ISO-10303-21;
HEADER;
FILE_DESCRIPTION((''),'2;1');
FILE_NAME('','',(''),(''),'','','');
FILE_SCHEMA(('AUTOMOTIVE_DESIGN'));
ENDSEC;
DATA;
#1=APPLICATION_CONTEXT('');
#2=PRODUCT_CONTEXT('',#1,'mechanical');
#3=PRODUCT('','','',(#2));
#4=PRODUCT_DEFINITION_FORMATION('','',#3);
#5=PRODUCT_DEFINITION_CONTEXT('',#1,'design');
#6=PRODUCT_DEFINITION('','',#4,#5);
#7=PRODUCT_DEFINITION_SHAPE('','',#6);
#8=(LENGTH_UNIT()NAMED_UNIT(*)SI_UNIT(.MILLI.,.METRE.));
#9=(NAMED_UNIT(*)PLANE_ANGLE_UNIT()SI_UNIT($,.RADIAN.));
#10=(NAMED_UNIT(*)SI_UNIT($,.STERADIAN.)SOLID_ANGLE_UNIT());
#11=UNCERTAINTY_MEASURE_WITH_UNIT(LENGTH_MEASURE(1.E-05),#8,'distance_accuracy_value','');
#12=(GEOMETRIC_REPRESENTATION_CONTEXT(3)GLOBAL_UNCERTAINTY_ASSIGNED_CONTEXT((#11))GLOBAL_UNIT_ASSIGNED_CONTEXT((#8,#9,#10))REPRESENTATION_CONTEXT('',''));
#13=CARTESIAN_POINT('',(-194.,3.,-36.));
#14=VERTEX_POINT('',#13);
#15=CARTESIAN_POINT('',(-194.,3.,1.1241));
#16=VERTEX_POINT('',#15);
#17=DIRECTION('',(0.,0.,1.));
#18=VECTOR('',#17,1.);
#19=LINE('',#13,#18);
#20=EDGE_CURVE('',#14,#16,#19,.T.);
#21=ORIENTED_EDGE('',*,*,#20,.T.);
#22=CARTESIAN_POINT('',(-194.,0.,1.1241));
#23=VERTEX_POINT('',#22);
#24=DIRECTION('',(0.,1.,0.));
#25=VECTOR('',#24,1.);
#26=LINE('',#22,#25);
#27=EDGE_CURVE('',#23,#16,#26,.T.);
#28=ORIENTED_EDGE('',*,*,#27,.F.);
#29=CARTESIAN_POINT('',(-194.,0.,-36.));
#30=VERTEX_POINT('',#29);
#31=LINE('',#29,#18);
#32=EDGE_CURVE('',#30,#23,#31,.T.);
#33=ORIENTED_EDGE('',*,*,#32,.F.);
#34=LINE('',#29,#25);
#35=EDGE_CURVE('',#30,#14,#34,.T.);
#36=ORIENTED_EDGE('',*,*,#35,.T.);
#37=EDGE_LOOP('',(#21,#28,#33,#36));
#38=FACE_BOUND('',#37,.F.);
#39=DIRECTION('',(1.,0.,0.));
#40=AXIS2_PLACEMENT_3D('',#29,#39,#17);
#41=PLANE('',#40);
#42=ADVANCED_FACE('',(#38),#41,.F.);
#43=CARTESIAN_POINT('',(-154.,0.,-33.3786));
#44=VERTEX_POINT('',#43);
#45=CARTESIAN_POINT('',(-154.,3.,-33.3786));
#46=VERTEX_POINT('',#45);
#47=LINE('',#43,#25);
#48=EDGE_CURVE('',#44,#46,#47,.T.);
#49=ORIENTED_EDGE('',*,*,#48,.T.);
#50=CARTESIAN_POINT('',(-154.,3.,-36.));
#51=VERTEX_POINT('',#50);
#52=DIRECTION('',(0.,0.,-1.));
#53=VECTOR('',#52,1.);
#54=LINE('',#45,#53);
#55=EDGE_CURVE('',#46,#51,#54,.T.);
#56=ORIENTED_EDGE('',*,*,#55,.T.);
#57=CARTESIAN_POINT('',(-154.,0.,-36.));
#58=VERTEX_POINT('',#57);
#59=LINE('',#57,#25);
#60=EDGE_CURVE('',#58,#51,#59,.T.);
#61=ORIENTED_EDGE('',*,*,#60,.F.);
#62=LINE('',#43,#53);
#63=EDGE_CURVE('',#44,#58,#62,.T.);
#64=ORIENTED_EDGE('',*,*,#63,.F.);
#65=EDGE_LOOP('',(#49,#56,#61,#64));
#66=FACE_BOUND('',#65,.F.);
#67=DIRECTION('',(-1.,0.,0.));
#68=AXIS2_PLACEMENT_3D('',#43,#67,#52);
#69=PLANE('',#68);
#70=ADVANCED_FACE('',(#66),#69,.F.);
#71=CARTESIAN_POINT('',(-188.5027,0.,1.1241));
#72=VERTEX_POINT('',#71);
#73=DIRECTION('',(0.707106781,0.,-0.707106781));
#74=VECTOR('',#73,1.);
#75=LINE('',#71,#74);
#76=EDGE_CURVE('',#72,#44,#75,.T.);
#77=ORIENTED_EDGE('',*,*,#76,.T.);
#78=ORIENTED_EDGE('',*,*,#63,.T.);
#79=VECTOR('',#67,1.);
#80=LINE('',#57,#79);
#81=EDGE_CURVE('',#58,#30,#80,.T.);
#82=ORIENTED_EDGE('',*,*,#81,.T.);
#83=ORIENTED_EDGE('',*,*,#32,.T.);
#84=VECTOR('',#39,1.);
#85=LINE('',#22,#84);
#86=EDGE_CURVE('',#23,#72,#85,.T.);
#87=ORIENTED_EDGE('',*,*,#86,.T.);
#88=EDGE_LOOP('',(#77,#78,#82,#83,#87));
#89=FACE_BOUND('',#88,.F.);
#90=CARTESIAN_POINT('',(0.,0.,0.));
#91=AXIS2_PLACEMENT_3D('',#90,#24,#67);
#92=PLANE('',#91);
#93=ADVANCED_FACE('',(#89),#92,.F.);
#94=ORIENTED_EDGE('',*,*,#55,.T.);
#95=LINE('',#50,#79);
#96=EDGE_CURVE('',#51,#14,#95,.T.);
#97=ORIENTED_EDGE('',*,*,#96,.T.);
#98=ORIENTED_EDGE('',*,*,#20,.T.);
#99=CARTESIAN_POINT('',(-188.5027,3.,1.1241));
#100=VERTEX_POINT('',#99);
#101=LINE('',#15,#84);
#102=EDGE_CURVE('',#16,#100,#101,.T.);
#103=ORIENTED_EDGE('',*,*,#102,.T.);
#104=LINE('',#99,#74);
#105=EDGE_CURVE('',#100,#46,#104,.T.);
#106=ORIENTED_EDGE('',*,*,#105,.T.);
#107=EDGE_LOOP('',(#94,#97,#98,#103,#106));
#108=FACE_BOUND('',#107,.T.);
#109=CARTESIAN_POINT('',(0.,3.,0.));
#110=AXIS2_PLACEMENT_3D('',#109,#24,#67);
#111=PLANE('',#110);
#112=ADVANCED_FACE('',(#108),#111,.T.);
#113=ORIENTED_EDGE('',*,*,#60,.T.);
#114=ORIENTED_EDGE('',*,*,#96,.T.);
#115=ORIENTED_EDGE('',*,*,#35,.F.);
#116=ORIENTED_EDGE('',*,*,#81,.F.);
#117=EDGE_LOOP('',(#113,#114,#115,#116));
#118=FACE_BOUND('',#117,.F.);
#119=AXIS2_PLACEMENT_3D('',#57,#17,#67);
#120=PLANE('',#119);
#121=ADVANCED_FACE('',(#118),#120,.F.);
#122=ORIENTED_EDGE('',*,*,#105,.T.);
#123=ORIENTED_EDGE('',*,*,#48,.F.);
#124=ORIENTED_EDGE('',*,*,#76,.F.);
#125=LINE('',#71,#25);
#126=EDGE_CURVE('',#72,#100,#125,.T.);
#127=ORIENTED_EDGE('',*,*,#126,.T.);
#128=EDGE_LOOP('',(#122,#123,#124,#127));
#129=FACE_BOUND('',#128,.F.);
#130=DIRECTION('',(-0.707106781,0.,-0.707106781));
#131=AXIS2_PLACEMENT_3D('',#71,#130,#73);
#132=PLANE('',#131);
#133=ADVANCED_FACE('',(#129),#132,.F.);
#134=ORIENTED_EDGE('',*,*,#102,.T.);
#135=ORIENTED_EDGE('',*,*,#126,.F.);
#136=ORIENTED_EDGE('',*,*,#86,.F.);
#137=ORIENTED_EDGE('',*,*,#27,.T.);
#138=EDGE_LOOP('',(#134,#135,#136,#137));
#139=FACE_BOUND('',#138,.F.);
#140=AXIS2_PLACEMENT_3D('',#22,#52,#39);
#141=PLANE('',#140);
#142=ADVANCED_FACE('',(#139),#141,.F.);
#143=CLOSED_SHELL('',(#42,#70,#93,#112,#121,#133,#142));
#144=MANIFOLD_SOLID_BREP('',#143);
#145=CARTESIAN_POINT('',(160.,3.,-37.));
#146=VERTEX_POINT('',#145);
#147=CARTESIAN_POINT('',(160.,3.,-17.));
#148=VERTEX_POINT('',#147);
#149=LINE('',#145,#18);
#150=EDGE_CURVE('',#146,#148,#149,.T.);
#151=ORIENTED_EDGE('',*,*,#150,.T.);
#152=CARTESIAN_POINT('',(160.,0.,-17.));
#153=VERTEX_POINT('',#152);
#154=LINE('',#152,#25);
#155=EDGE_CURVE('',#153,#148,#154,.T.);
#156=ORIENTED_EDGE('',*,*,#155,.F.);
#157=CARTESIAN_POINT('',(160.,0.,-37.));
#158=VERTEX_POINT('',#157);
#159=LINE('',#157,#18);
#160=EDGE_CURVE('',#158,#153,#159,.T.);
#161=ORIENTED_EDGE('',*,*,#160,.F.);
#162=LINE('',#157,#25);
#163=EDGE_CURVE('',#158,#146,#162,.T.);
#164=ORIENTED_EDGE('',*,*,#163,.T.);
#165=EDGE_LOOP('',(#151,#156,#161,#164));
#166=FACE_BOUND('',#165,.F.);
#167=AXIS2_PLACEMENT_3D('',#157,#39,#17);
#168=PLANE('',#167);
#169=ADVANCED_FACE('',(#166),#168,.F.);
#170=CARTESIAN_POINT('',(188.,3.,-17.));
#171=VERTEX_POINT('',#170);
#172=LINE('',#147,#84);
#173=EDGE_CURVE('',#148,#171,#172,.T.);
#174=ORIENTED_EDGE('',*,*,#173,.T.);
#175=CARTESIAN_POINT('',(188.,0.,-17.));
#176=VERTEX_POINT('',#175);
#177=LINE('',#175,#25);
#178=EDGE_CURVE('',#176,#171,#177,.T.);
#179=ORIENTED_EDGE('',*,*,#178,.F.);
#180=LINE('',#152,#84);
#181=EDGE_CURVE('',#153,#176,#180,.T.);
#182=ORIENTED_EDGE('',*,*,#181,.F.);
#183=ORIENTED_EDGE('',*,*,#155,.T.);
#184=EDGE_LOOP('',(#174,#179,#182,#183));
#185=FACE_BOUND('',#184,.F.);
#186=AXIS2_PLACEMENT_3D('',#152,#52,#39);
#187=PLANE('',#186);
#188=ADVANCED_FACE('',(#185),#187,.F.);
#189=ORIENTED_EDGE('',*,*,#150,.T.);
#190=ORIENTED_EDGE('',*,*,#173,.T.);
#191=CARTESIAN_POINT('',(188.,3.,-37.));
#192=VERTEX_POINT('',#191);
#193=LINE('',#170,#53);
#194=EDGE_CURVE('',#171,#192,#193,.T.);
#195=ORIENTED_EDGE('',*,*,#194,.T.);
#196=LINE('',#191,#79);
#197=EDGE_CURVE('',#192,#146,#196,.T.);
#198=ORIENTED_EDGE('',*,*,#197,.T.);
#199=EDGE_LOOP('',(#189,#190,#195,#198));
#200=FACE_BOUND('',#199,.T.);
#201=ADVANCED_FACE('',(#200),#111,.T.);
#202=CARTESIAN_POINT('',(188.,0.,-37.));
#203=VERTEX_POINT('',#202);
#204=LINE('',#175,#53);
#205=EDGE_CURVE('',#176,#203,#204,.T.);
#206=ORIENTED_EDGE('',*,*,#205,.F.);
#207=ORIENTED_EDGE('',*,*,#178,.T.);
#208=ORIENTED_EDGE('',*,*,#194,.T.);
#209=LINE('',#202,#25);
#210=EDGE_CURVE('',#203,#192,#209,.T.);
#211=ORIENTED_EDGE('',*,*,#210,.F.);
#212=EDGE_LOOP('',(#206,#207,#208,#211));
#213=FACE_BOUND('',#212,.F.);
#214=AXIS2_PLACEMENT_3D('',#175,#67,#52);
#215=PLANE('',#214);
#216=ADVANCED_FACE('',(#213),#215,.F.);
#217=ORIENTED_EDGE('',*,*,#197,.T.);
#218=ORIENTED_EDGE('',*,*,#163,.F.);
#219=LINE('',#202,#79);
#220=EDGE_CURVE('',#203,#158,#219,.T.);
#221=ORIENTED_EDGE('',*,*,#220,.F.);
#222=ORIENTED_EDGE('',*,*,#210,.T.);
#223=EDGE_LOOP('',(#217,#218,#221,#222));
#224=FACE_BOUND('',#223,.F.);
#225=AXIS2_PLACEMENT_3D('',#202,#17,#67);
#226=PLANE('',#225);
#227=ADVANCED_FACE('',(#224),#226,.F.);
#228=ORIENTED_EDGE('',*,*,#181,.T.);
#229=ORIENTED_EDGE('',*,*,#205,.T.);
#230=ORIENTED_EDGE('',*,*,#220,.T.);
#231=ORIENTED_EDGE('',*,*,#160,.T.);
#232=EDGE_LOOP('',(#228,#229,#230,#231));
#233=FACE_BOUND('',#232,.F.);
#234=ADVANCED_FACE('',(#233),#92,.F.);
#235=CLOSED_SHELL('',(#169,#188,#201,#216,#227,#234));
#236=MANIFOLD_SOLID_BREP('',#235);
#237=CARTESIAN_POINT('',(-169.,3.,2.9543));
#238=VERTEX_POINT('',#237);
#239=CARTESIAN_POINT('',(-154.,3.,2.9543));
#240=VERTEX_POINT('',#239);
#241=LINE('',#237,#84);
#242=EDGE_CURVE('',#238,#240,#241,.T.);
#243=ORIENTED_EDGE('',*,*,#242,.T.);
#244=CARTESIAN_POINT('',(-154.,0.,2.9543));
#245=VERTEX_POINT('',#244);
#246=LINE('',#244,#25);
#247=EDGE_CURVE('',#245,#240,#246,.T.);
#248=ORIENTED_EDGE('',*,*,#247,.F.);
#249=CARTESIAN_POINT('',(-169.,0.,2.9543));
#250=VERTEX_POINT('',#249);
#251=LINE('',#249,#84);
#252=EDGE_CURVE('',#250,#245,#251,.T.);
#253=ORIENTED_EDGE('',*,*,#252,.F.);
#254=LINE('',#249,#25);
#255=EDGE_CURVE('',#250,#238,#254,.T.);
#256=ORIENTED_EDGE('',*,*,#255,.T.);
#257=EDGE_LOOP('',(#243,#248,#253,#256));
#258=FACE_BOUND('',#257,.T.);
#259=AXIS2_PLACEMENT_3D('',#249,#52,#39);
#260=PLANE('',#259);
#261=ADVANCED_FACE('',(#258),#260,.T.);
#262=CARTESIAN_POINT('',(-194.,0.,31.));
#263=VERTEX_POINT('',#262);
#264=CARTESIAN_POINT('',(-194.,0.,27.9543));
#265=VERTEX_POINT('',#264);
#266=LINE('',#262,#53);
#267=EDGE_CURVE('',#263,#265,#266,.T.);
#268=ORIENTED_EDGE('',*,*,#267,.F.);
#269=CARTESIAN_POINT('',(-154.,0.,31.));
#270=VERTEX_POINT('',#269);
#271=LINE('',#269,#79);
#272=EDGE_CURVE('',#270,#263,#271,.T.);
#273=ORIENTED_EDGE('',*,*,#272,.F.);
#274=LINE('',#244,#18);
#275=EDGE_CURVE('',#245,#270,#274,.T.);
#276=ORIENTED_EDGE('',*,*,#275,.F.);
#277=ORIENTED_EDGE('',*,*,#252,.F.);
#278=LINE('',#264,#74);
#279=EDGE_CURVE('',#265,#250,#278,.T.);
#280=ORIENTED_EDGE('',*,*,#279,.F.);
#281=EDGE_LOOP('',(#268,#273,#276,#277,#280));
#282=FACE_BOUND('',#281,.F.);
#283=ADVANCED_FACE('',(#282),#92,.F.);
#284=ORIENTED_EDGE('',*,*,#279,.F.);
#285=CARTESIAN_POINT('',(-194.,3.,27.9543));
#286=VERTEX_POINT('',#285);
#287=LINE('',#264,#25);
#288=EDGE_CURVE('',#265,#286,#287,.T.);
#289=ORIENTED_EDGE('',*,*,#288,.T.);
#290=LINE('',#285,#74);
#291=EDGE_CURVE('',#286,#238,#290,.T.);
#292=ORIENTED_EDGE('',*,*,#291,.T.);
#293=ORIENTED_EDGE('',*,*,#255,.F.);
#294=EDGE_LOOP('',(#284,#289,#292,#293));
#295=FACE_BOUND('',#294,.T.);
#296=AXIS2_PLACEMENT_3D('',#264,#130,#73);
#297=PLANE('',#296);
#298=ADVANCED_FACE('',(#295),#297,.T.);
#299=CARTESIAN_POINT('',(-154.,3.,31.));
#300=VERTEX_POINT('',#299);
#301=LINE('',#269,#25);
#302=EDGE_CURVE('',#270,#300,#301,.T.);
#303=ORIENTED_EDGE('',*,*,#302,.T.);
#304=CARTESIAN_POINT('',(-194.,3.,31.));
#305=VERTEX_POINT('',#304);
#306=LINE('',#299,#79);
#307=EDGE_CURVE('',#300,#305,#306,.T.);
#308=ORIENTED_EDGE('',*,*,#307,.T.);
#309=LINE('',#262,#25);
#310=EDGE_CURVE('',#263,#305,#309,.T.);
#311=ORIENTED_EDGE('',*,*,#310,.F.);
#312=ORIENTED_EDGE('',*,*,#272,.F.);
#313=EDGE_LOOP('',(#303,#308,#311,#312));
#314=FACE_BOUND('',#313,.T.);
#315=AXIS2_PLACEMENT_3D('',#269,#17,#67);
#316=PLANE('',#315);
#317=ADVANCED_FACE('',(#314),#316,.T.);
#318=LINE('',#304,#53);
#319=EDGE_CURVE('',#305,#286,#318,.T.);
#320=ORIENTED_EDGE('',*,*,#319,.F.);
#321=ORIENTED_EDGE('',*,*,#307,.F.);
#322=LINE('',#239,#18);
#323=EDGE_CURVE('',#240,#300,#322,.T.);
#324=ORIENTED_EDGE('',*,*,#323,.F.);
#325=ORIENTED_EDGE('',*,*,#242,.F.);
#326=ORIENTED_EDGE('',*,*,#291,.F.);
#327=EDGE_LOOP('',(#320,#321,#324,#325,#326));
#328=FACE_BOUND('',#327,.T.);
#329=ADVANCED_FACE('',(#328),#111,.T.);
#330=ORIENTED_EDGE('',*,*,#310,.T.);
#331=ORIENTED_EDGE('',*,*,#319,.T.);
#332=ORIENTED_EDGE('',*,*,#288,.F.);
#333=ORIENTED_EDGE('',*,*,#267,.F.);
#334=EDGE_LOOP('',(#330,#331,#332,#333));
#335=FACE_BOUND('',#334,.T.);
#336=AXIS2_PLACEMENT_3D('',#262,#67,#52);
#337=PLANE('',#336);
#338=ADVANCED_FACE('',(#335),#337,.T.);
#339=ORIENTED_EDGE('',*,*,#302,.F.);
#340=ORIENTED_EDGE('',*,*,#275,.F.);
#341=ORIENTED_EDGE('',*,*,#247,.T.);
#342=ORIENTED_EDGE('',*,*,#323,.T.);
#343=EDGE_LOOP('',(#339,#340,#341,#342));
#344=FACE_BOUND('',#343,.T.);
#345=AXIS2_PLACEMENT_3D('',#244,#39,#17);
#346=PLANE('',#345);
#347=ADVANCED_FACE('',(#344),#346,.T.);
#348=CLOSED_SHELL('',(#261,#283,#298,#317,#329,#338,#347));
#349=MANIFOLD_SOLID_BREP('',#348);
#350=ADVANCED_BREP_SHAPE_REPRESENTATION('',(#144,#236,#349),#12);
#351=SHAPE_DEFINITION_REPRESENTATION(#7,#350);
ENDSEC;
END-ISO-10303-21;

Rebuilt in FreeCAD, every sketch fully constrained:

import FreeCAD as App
import Part
import Sketcher
Q = App.Units.Quantity


def add_polygon(sketch, points):
    """Adds a closed chain of lines whose ends are joined by coincident constraints."""
    first, n = sketch.GeometryCount, len(points)
    for a, b in zip(points, points[1:] + points[:1]):
        sketch.addGeometry(Part.LineSegment(App.Vector(*a, 0), App.Vector(*b, 0)), False)
    for i in range(n):
        sketch.addConstraint(Sketcher.Constraint("Coincident", first + i, 2, first + (i + 1) % n, 1))

doc = App.newDocument("Part")
params = doc.addObject("Spreadsheet::Sheet", "Params")
for row, (alias, value) in enumerate([
    ("sketch1_width", "15 mm"),
    ("sketch1_height", "20 mm"),
    ("sketch1_width2", "28 mm"),
    ("sketch1_width3", "40 mm"),
    ("pad1_length", "3 mm"),
], start=1):
    params.set(f"A{row}", alias)
    params.set(f"B{row}", "=" + value)
    params.setAlias(f"B{row}", alias)

body = doc.addObject("PartDesign::Body", "Body")
body.AllowCompound = True

sketch1 = body.newObject("Sketcher::SketchObject", "Sketch")
sketch1.AttachmentSupport = (doc.getObject("XZ_Plane"), [""])
sketch1.MapMode = "FlatFace"
add_polygon(sketch1, [(188, -37), (160, -37), (160, -17), (188, -17)])
add_polygon(sketch1, [(-154, -36), (-194, -36), (-194, 1.1), (-188.5, 1.1), (-154, -33.4)])
add_polygon(sketch1, [(-154, 3), (-169, 3), (-194, 28), (-194, 31), (-154, 31)])
sketch1.addConstraint([
    Sketcher.Constraint("Horizontal", 0),
    Sketcher.Constraint("Vertical", 1),
    Sketcher.Constraint("Horizontal", 2),
    Sketcher.Constraint("Vertical", 3),
    Sketcher.Constraint("Horizontal", 4),
    Sketcher.Constraint("Vertical", 5),
    Sketcher.Constraint("Horizontal", 6),
    Sketcher.Constraint("Vertical", 8),
    Sketcher.Constraint("Horizontal", 9),
    Sketcher.Constraint("Vertical", 11),
    Sketcher.Constraint("Horizontal", 12),
    Sketcher.Constraint("Vertical", 13),
    Sketcher.Constraint("Parallel", 7, 10),
    Sketcher.Constraint("Vertical", 5, 2, 10, 2),
    Sketcher.Constraint("Vertical", 8, 2, 12, 2),
    Sketcher.Constraint("DistanceX", 9, 2, 9, 1, 15.0),
    Sketcher.Constraint("DistanceY", 1, 1, 1, 2, 20.0),
    Sketcher.Constraint("Angle", 7, Q("-45 deg")),
    Sketcher.Constraint("DistanceY", 1, 2, -1, 1, 17.0),
    Sketcher.Constraint("DistanceX", 0, 2, 0, 1, 28.0),
    Sketcher.Constraint("DistanceX", 4, 2, 4, 1, 40.0),
    Sketcher.Constraint("DistanceX", -1, 1, 0, 2, 160.0),
    Sketcher.Constraint("DistanceX", 4, 2, -1, 1, 194.0),
    Sketcher.Constraint("DistanceY", 4, 2, -1, 1, 36.0),
    Sketcher.Constraint("DistanceY", -1, 1, 11, 2, 31.0),
    Sketcher.Constraint("DistanceY", 5, 1, 5, 2, 37.124),
    Sketcher.Constraint("DistanceX", 6, 1, 6, 2, 5.4973),
    Sketcher.Constraint("DistanceY", 11, 1, 11, 2, 3.0457),
])
sketch1.setExpression("Constraints[29]", "Params.sketch1_width")
sketch1.setExpression("Constraints[30]", "Params.sketch1_height")
sketch1.setExpression("Constraints[33]", "Params.sketch1_width2")
sketch1.setExpression("Constraints[34]", "Params.sketch1_width3")
pad1 = body.newObject("PartDesign::Pad", "Pad")
pad1.Profile = sketch1
pad1.setExpression("Length", "Params.pad1_length")
pad1.Reversed = True

doc.recompute()
